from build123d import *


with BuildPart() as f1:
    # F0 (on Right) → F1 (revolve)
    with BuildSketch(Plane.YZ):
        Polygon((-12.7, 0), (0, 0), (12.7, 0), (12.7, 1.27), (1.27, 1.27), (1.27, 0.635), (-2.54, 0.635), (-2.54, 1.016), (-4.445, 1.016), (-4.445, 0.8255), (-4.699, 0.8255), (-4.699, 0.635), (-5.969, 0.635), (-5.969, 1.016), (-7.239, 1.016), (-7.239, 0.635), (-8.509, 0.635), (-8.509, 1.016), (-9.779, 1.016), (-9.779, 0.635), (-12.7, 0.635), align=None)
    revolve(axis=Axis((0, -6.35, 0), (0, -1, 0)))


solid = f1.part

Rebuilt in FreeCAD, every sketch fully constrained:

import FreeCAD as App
import Part
import Sketcher
Q = App.Units.Quantity

doc = App.newDocument("Part")
params = doc.addObject("Spreadsheet::Sheet", "Params")
for row, (alias, value) in enumerate([
    ("sketch1_width", "1 in"),
    ("sketch1_width2", "0.45 in"),
    ("sketch1_width3", "0.15 in"),
    ("sketch1_width4", "0.01 in"),
    ("sketch1_width5", "0.05 in"),
    ("revolution_angle", "360 deg"),
], start=1):
    params.set(f"A{row}", alias)
    params.set(f"B{row}", "=" + value)
    params.setAlias(f"B{row}", alias)

body = doc.addObject("PartDesign::Body", "Body")

# Sketch on YZ plane
sketch1 = doc.addObject("Sketcher::SketchObject", "Sketch")
body.addObject(sketch1)
sketch1.AttachmentSupport = (doc.YZ_Plane, [""])
sketch1.MapMode = "FlatFace"
sketch1.addGeometry([
    Part.LineSegment(App.Vector(-12.7, 0, 0), App.Vector(12.7, 0, 0)),  # 0
    Part.LineSegment(App.Vector(12.7, 0, 0), App.Vector(12.7, 1.27, 0)),  # 1
    Part.LineSegment(App.Vector(12.7, 1.27, 0), App.Vector(1.27, 1.27, 0)),  # 2
    Part.LineSegment(App.Vector(1.27, 1.27, 0), App.Vector(1.27, 0.635, 0)),  # 3
    Part.LineSegment(App.Vector(1.27, 0.635, 0), App.Vector(-2.54, 0.635, 0)),  # 4
    Part.LineSegment(App.Vector(-2.54, 0.635, 0), App.Vector(-2.54, 1.016, 0)),  # 5
    Part.LineSegment(App.Vector(-2.54, 1.016, 0), App.Vector(-4.445, 1.016, 0)),  # 6
    Part.LineSegment(App.Vector(-4.445, 1.016, 0), App.Vector(-4.445, 0.8255, 0)),  # 7
    Part.LineSegment(App.Vector(-4.445, 0.8255, 0), App.Vector(-4.699, 0.8255, 0)),  # 8
    Part.LineSegment(App.Vector(-4.699, 0.8255, 0), App.Vector(-4.699, 0.635, 0)),  # 9
    Part.LineSegment(App.Vector(-4.699, 0.635, 0), App.Vector(-5.969, 0.635, 0)),  # 10
    Part.LineSegment(App.Vector(-5.969, 0.635, 0), App.Vector(-5.969, 1.016, 0)),  # 11
    Part.LineSegment(App.Vector(-5.969, 1.016, 0), App.Vector(-7.239, 1.016, 0)),  # 12
    Part.LineSegment(App.Vector(-7.239, 1.016, 0), App.Vector(-7.239, 0.635, 0)),  # 13
    Part.LineSegment(App.Vector(-7.239, 0.635, 0), App.Vector(-8.509, 0.635, 0)),  # 14
    Part.LineSegment(App.Vector(-8.509, 0.635, 0), App.Vector(-8.509, 1.016, 0)),  # 15
    Part.LineSegment(App.Vector(-8.509, 1.016, 0), App.Vector(-9.779, 1.016, 0)),  # 16
    Part.LineSegment(App.Vector(-9.779, 1.016, 0), App.Vector(-9.779, 0.635, 0)),  # 17
    Part.LineSegment(App.Vector(-9.779, 0.635, 0), App.Vector(-12.7, 0.635, 0)),  # 18
    Part.LineSegment(App.Vector(-12.7, 0.635, 0), App.Vector(-12.7, 0, 0)),  # 19
], False)
sketch1.addConstraint([
    Sketcher.Constraint("Coincident", 0, 2, 1, 1),
    Sketcher.Constraint("Coincident", 1, 2, 2, 1),
    Sketcher.Constraint("Coincident", 2, 2, 3, 1),
    Sketcher.Constraint("Coincident", 3, 2, 4, 1),
    Sketcher.Constraint("Coincident", 4, 2, 5, 1),
    Sketcher.Constraint("Coincident", 5, 2, 6, 1),
    Sketcher.Constraint("Coincident", 6, 2, 7, 1),
    Sketcher.Constraint("Coincident", 7, 2, 8, 1),
    Sketcher.Constraint("Coincident", 8, 2, 9, 1),
    Sketcher.Constraint("Coincident", 9, 2, 10, 1),
    Sketcher.Constraint("Coincident", 10, 2, 11, 1),
    Sketcher.Constraint("Coincident", 11, 2, 12, 1),
    Sketcher.Constraint("Coincident", 12, 2, 13, 1),
    Sketcher.Constraint("Coincident", 13, 2, 14, 1),
    Sketcher.Constraint("Coincident", 14, 2, 15, 1),
    Sketcher.Constraint("Coincident", 15, 2, 16, 1),
    Sketcher.Constraint("Coincident", 16, 2, 17, 1),
    Sketcher.Constraint("Coincident", 17, 2, 18, 1),
    Sketcher.Constraint("Coincident", 18, 2, 19, 1),
    Sketcher.Constraint("Coincident", 19, 2, 0, 1),
    Sketcher.Constraint("Horizontal", 0),
    Sketcher.Constraint("Vertical", 1),
    Sketcher.Constraint("Horizontal", 2),
    Sketcher.Constraint("Vertical", 3),
    Sketcher.Constraint("Horizontal", 4),
    Sketcher.Constraint("Vertical", 5),
    Sketcher.Constraint("Horizontal", 6),
    Sketcher.Constraint("Vertical", 7),
    Sketcher.Constraint("Horizontal", 8),
    Sketcher.Constraint("Vertical", 9),
    Sketcher.Constraint("Horizontal", 10),
    Sketcher.Constraint("Vertical", 11),
    Sketcher.Constraint("Horizontal", 12),
    Sketcher.Constraint("Vertical", 13),
    Sketcher.Constraint("Horizontal", 14),
    Sketcher.Constraint("Vertical", 15),
    Sketcher.Constraint("Horizontal", 16),
    Sketcher.Constraint("Vertical", 17),
    Sketcher.Constraint("Horizontal", 18),
    Sketcher.Constraint("Vertical", 19),
    Sketcher.Constraint("Symmetric", 0, 2, 19, 2, -1, 1),
    Sketcher.Constraint("Horizontal", 4, 2, 9, 2),
    Sketcher.Constraint("Horizontal", 6, 2, 11, 2),
    Sketcher.Constraint("Horizontal", 10, 2, 13, 2),
    Sketcher.Constraint("Horizontal", 12, 2, 15, 2),
    Sketcher.Constraint("Horizontal", 14, 2, 17, 2),
    Sketcher.Constraint("Equal", 10, 12),
    Sketcher.Constraint("Equal", 12, 14),
    Sketcher.Constraint("Equal", 14, 16),
    Sketcher.Constraint("Equal", 16, 1),
    Sketcher.Constraint("Equal", 7, 9),
    Sketcher.Constraint("Equal", 3, 19),
    Sketcher.Constraint("DistanceX", 0, 1, 0, 2, Q("1 in")),
    Sketcher.Constraint("DistanceX", 2, 2, 2, 1, Q("0.45 in")),
    Sketcher.Constraint("DistanceX", 4, 2, 4, 1, Q("0.15 in")),
    Sketcher.Constraint("DistanceX", 8, 2, 8, 1, Q("0.01 in")),
    Sketcher.Constraint("DistanceX", 10, 2, 10, 1, Q("0.05 in")),
    Sketcher.Constraint("DistanceX", 6, 2, 6, 1, Q("0.075 in")),
    Sketcher.Constraint("DistanceY", 5, 1, 5, 2, Q("0.015 in")),
])
sketch1.setExpression("Constraints[52]", "Params.sketch1_width")
sketch1.setExpression("Constraints[53]", "Params.sketch1_width2")
sketch1.setExpression("Constraints[54]", "Params.sketch1_width3")
sketch1.setExpression("Constraints[55]", "Params.sketch1_width4")
sketch1.setExpression("Constraints[56]", "Params.sketch1_width5")
revolution = doc.addObject("PartDesign::Revolution", "Revolution")
body.addObject(revolution)
revolution.Profile = sketch1
revolution.ReferenceAxis = (sketch1, ["H_Axis"])
revolution.setExpression("Angle", "Params.revolution_angle")

doc.recompute()
